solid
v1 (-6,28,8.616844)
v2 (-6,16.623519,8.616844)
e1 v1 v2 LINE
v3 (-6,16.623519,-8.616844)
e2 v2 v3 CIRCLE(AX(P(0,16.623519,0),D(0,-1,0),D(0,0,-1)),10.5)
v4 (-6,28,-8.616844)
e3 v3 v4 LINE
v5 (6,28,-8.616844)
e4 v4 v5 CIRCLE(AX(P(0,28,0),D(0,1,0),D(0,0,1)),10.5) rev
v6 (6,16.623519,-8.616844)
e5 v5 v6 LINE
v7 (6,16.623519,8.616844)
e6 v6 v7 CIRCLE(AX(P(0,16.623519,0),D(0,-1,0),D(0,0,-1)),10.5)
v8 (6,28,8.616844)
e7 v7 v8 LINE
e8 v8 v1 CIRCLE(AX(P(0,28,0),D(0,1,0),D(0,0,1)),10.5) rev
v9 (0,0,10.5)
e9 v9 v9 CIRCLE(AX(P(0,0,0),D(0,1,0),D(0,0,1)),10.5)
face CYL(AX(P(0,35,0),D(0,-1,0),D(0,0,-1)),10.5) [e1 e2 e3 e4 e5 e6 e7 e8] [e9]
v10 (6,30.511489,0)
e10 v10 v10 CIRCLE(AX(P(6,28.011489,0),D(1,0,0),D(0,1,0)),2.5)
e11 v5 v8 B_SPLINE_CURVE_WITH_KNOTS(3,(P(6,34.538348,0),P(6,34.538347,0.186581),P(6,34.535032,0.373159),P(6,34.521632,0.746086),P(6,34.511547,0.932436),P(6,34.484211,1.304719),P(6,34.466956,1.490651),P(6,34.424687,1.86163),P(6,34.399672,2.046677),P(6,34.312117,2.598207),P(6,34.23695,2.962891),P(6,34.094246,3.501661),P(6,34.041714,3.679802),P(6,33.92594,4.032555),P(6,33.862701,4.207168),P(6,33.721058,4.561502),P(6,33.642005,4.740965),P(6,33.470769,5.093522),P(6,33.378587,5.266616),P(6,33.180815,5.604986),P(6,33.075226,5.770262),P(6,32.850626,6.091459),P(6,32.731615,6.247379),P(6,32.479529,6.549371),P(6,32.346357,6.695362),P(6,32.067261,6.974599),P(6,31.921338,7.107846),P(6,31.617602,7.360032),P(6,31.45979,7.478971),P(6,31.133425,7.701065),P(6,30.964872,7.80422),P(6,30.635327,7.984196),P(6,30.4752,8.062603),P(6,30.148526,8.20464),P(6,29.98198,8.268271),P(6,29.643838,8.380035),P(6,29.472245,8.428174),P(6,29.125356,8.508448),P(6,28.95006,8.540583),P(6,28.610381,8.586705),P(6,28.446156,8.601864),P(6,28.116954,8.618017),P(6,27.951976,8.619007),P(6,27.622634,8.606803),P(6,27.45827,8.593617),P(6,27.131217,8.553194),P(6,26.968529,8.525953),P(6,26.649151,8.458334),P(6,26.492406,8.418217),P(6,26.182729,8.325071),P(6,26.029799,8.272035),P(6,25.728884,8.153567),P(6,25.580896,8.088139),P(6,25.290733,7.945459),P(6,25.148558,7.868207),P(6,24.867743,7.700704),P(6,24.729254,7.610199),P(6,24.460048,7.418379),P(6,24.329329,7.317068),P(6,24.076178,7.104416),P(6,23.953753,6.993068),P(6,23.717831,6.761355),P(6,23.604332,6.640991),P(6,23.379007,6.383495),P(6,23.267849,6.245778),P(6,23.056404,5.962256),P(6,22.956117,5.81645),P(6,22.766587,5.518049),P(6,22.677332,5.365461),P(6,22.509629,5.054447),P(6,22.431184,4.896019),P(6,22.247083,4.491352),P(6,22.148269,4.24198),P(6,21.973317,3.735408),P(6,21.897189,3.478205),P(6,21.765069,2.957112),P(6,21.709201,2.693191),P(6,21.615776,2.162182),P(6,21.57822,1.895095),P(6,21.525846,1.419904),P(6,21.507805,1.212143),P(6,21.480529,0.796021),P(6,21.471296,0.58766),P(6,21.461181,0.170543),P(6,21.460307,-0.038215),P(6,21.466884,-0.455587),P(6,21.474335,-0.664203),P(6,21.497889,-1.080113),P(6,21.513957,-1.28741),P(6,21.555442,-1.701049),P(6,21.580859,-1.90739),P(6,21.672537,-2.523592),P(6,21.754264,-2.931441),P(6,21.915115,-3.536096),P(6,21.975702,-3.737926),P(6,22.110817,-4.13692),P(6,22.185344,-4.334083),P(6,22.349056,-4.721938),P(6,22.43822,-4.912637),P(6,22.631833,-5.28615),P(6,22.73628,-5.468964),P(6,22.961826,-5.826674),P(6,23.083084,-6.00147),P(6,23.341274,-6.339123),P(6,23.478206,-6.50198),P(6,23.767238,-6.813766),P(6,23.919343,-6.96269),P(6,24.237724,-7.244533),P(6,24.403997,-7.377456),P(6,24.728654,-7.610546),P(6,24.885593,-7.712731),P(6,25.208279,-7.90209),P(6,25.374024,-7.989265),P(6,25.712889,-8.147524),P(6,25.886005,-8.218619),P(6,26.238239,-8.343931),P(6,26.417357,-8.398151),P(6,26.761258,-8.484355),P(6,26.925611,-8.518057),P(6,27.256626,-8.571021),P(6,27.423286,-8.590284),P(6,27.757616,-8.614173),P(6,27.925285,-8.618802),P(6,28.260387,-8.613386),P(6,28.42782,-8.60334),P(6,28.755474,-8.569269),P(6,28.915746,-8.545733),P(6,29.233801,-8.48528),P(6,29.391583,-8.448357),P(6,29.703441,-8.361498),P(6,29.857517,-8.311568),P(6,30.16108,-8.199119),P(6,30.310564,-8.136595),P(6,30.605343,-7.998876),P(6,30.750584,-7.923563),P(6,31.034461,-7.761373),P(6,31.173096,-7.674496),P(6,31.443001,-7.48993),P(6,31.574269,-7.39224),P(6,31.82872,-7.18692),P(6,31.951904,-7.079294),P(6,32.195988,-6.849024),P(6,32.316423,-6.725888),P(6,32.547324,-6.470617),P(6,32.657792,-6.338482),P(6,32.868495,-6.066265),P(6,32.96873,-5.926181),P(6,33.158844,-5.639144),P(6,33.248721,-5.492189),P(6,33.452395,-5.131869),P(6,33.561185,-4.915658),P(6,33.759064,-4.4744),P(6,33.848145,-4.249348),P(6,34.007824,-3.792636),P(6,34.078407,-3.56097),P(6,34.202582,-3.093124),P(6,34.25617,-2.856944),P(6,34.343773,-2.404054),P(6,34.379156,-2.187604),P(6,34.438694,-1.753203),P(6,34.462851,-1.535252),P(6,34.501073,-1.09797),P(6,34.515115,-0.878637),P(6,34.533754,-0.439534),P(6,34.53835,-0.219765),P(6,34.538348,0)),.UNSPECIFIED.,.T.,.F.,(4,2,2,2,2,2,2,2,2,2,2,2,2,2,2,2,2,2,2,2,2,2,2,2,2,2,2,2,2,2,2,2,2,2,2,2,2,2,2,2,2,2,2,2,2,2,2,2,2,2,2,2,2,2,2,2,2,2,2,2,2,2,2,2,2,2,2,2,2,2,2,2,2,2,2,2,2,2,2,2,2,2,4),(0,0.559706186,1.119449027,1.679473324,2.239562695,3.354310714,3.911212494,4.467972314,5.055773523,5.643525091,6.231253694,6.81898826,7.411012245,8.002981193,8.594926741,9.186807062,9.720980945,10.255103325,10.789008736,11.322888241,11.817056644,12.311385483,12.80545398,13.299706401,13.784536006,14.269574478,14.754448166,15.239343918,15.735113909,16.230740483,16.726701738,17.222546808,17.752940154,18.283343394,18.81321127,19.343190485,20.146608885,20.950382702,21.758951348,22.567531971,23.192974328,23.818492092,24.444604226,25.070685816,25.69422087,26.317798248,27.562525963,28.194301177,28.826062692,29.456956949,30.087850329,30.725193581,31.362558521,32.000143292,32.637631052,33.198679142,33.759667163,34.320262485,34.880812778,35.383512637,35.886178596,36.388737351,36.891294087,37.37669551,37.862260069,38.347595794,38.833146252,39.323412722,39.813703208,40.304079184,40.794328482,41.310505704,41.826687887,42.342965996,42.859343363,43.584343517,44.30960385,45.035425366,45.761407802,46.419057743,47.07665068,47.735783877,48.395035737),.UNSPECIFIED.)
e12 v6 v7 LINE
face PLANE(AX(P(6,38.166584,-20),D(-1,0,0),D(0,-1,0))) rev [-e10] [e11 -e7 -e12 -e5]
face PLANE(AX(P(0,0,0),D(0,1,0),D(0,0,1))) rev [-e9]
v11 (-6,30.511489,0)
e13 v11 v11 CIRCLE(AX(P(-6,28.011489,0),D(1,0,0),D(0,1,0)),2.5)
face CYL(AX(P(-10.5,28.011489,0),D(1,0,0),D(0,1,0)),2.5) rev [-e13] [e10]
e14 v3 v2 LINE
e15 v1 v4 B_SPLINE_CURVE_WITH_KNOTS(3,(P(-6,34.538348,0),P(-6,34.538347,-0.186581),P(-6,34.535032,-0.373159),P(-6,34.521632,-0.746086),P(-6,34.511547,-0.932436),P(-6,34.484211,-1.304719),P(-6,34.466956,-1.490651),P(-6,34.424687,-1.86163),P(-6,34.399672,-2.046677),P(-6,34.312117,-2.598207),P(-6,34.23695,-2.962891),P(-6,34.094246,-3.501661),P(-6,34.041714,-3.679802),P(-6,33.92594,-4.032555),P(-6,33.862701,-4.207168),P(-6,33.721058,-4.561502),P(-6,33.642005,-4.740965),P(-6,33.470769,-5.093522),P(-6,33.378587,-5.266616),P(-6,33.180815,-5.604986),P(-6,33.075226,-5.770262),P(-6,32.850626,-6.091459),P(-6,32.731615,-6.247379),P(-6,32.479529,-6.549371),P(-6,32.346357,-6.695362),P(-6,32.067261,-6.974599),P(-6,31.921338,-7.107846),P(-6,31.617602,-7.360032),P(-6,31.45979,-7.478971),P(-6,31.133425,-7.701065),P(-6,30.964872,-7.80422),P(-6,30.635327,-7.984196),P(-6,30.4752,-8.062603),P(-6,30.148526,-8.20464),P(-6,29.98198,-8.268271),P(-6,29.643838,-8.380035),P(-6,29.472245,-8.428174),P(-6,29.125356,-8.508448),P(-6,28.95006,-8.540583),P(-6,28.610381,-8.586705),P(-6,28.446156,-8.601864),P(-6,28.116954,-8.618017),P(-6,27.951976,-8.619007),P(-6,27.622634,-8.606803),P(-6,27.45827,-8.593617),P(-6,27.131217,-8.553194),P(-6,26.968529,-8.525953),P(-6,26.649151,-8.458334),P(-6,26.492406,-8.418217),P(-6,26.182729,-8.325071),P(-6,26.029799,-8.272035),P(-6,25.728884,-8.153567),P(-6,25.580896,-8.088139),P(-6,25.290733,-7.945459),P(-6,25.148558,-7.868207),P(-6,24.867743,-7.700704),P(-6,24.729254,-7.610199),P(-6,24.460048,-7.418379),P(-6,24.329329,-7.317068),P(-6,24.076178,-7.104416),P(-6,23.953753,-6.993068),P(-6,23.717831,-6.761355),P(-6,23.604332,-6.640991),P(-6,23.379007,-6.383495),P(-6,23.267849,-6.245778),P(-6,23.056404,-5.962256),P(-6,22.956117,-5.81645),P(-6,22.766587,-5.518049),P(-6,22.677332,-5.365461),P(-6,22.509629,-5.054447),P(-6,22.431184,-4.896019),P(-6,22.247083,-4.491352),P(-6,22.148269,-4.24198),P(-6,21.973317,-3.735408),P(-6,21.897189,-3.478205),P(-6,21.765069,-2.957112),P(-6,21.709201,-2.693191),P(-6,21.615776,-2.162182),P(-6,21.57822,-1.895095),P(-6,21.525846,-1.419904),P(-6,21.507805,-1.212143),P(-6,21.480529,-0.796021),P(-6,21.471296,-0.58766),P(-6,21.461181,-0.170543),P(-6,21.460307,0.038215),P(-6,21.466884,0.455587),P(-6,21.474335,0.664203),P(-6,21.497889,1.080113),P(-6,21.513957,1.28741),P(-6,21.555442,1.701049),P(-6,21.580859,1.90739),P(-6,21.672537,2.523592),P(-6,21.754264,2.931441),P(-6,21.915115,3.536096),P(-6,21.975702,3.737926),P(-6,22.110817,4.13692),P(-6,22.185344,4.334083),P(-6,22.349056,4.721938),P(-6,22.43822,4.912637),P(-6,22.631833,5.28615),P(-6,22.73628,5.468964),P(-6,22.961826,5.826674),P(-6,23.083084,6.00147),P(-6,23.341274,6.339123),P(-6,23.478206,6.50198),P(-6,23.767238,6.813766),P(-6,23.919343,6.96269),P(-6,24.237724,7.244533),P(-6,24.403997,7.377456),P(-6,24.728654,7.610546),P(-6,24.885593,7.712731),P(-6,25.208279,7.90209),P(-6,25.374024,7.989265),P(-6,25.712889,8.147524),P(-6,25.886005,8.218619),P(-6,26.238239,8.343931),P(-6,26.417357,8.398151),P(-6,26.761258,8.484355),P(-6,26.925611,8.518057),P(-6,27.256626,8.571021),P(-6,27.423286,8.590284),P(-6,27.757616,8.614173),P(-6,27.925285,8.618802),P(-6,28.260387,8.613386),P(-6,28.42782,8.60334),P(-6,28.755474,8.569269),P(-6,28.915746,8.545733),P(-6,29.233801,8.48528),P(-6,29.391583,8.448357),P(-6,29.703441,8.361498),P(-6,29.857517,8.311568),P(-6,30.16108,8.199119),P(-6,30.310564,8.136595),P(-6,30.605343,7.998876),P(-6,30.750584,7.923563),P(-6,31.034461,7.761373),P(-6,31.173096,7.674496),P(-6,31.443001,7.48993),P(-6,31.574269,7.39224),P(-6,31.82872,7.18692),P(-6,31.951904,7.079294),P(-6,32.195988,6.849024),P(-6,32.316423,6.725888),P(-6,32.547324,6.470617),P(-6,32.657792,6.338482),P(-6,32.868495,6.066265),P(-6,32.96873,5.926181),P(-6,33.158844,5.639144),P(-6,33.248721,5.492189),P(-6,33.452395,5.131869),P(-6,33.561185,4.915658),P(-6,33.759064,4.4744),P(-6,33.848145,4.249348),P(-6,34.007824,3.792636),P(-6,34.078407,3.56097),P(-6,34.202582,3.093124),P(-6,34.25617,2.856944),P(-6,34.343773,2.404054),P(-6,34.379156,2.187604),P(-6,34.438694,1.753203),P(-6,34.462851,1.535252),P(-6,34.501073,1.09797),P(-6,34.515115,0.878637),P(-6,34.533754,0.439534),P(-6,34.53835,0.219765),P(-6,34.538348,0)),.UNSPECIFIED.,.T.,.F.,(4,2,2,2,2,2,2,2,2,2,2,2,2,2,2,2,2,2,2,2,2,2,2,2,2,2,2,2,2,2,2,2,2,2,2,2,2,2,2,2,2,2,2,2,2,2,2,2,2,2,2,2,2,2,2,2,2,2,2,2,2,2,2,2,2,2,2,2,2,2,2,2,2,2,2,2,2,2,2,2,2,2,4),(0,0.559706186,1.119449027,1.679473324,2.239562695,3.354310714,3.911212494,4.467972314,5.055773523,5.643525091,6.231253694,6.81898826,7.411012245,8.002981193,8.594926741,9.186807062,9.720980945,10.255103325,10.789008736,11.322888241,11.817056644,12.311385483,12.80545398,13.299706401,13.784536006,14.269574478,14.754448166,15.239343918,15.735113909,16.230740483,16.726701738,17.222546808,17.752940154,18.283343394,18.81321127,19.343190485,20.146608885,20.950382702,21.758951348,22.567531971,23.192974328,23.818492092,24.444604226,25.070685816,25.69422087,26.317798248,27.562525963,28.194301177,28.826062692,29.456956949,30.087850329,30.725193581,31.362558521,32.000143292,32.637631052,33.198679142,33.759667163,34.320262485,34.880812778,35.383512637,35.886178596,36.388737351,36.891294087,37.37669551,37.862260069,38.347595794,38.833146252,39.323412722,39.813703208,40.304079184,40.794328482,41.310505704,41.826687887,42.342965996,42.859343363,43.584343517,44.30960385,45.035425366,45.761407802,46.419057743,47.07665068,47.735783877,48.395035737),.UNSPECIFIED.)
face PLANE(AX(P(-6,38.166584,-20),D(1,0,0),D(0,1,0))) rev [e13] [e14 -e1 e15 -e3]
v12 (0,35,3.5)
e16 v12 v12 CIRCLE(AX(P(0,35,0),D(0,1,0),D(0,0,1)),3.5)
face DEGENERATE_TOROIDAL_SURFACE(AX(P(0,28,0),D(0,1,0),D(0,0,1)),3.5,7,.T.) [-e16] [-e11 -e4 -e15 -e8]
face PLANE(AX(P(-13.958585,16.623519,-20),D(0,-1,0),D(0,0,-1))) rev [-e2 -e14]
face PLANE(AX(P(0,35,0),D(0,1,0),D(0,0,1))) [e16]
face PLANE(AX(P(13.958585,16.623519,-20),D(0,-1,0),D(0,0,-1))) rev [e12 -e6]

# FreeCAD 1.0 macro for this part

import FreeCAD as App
import Part
import Sketcher
from FreeCAD import Vector
Q = App.Units.Quantity


def edges_at(feature, points):
    """Names of the edges that pass closest to the given points."""
    edges = feature.Shape.Edges
    near = lambda p: min(range(len(edges)), key=lambda i: edges[i].distToShape(Part.Vertex(*p))[0])
    return sorted({f"Edge{near(p) + 1}" for p in points})


def add_polygon(sketch, points):
    """Adds a closed chain of lines whose ends are joined by coincident constraints."""
    first, n = sketch.GeometryCount, len(points)
    for a, b in zip(points, points[1:] + points[:1]):
        sketch.addGeometry(Part.LineSegment(App.Vector(*a, 0), App.Vector(*b, 0)), False)
    for i in range(n):
        sketch.addConstraint(Sketcher.Constraint("Coincident", first + i, 2, first + (i + 1) % n, 1))

doc = App.newDocument("Part")
body = doc.addObject("PartDesign::Body", "Body")

# Sketch on XZ plane
sketch1 = body.newObject("Sketcher::SketchObject", "Sketch")
sketch1.AttachmentSupport = (doc.getObject("XZ_Plane"), [""])
sketch1.MapMode = "FlatFace"
sketch1.addGeometry(Part.Circle(Vector(0, 0, 0), Vector(0, 0, 1), 10), False)
sketch1.addConstraint(Sketcher.Constraint("Coincident", 0, 3, -1, 1))
sketch1.addConstraint(Sketcher.Constraint("Diameter", 0, Q("21 mm")))
pad1 = body.newObject("PartDesign::Pad", "Pad")
pad1.Profile = sketch1
pad1.Length = 35
pad1.Reversed = True
doc.recompute()

fillet = body.newObject("PartDesign::Fillet", "Fillet")
fillet.Base = (pad1, edges_at(pad1, [(0, 35, -10.5)]))
fillet.Radius = 7

# Sketch on XY plane
sketch2 = body.newObject("Sketcher::SketchObject", "Sketch001")
sketch2.AttachmentSupport = (doc.getObject("XY_Plane"), [""])
sketch2.MapMode = "FlatFace"
add_polygon(sketch2, [(6, 38), (6, 17), (14, 17), (14, 38)])  # lines 0-3
add_polygon(sketch2, [(-14, 38), (-14, 17), (-6, 17), (-6, 38)])  # lines 4-7
sketch2.addConstraint(Sketcher.Constraint("Vertical", 0))
sketch2.addConstraint(Sketcher.Constraint("Horizontal", 1))
sketch2.addConstraint(Sketcher.Constraint("Vertical", 2))
sketch2.addConstraint(Sketcher.Constraint("Horizontal", 3))
sketch2.addConstraint(Sketcher.Constraint("Vertical", 4))
sketch2.addConstraint(Sketcher.Constraint("Horizontal", 5))
sketch2.addConstraint(Sketcher.Constraint("Vertical", 6))
sketch2.addConstraint(Sketcher.Constraint("Horizontal", 7))
sketch2.addConstraint(Sketcher.Constraint("Symmetric", 1, 2, 4, 2, -2))
sketch2.addConstraint(Sketcher.Constraint("Symmetric", 3, 2, 6, 2, -2))
sketch2.addConstraint(Sketcher.Constraint("DistanceX", -1, 1, 0, 2, Q("6 mm")))
sketch2.addConstraint(Sketcher.Constraint("DistanceX", 1, 1, 1, 2, Q("7.958585 mm")))
sketch2.addConstraint(Sketcher.Constraint("DistanceY", 0, 2, 0, 1, Q("21.543066 mm")))
sketch2.addConstraint(Sketcher.Constraint("DistanceY", -1, 1, 0, 2, Q("16.623519 mm")))
pocket1 = body.newObject("PartDesign::Pocket", "Pocket")
pocket1.Profile = sketch2
pocket1.Length = 40
pocket1.Midplane = True

# Sketch on YZ plane
sketch3 = body.newObject("Sketcher::SketchObject", "Sketch002")
sketch3.AttachmentSupport = (doc.getObject("YZ_Plane"), [""])
sketch3.MapMode = "FlatFace"
sketch3.AttachmentOffset = App.Placement(Vector(0, 0, 6), App.Rotation())
sketch3.addGeometry(Part.Circle(Vector(28, 0, 0), Vector(0, 0, 1), 2.5), False)
sketch3.addConstraint(Sketcher.Constraint("PointOnObject", 0, 3, -1))
sketch3.addConstraint(Sketcher.Constraint("Diameter", 0, Q("5 mm")))
sketch3.addConstraint(Sketcher.Constraint("DistanceX", -1, 1, 0, 3, Q("28.011489 mm")))
pocket2 = body.newObject("PartDesign::Pocket", "Pocket001")
pocket2.Profile = sketch3
pocket2.Type = "ThroughAll"

doc.recompute()
